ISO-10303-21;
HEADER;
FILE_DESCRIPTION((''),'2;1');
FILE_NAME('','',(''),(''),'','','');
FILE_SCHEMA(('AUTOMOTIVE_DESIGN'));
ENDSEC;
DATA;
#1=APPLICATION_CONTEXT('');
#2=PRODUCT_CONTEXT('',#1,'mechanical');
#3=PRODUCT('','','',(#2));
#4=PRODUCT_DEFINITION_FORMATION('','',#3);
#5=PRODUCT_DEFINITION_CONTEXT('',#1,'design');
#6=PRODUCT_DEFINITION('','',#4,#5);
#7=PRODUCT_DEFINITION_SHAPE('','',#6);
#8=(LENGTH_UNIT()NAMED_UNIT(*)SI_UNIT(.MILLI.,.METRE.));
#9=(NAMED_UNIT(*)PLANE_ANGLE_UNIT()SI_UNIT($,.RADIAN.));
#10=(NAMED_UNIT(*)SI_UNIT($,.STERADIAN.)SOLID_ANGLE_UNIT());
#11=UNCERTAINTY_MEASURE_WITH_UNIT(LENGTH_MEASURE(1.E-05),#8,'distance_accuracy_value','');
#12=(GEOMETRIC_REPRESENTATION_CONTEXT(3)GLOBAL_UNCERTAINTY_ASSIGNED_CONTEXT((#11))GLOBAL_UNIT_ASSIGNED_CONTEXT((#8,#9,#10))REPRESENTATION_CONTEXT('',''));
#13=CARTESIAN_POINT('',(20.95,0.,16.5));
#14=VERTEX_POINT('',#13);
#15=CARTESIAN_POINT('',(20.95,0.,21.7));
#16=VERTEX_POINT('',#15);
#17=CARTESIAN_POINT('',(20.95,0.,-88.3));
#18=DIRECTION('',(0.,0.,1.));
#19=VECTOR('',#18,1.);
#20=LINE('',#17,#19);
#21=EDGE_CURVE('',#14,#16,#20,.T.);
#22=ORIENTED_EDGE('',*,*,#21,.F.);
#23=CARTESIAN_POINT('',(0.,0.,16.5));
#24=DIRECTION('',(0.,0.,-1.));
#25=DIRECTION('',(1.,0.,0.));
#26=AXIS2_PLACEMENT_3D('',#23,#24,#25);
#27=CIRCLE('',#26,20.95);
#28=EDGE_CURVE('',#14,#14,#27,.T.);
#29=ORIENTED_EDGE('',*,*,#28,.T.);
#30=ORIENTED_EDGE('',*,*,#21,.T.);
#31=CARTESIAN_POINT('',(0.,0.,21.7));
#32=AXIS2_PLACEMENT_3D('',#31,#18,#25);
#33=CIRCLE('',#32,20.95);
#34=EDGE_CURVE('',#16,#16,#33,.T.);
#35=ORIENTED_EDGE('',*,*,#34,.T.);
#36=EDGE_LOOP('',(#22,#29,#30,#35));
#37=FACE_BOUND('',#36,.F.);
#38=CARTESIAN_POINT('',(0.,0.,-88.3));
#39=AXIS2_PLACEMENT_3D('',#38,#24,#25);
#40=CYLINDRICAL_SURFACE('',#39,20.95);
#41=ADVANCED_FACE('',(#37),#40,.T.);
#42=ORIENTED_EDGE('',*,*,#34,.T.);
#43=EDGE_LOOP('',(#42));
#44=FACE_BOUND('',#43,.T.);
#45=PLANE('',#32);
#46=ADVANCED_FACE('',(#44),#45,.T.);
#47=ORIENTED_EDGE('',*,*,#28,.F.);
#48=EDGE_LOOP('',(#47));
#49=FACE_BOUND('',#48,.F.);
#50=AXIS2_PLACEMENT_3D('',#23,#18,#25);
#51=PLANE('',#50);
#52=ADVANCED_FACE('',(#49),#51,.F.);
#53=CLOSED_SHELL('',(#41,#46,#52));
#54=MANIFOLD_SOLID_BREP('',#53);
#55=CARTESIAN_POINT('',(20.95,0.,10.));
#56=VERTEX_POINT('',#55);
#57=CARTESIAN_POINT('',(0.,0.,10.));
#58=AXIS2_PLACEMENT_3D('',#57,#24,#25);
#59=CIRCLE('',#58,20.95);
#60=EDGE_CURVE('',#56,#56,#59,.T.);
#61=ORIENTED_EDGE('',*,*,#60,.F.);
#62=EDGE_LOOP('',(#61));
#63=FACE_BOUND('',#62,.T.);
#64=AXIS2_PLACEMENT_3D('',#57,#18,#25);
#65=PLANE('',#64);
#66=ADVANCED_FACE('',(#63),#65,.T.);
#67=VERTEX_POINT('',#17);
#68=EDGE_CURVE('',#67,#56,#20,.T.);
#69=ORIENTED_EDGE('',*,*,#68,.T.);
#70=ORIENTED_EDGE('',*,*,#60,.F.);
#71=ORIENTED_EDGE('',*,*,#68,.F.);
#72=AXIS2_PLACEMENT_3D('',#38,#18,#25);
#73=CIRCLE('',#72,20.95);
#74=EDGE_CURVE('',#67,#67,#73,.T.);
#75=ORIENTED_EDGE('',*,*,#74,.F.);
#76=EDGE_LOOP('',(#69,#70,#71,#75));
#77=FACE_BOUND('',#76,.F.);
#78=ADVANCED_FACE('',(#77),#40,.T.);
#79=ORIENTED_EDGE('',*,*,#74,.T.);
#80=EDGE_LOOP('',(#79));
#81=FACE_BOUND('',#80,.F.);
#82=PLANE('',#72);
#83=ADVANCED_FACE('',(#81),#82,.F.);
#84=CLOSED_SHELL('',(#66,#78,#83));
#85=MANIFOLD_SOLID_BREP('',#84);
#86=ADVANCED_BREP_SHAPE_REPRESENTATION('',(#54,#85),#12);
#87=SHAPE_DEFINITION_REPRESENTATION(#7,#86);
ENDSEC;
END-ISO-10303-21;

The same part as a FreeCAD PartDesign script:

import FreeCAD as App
import Part
import Sketcher

V = App.Vector
Q = App.Units.Quantity

doc = App.newDocument("Part")
body = doc.addObject("PartDesign::Body", "Body")
body.AllowCompound = True

sketch1 = body.newObject("Sketcher::SketchObject", "Sketch")
sketch1.AttachmentSupport = (doc.getObject("XY_Plane"), [""])
sketch1.MapMode = "FlatFace"
sketch1.AttachmentOffset = App.Placement(V(0, 0, -88.3), App.Rotation())
sketch1.addGeometry(Part.Circle(V(0, 0, 0), V(0, 0, 1), 21), False)
sketch1.addConstraint(Sketcher.Constraint("Coincident", 0, 3, -1, 1))
sketch1.addConstraint(Sketcher.Constraint("Diameter", 0, Q("41.9 mm")))
pad1 = body.newObject("PartDesign::Pad", "Pad")
pad1.Profile = sketch1
pad1.Length = 110

sketch2 = body.newObject("Sketcher::SketchObject", "Sketch001")
sketch2.AttachmentSupport = (doc.getObject("XY_Plane"), [""])
sketch2.MapMode = "FlatFace"
sketch2.AttachmentOffset = App.Placement(V(0, 0, 10), App.Rotation())
sketch2.addGeometry(Part.Circle(V(0, 0, 0), V(0, 0, 1), 22), False)
sketch2.addConstraint(Sketcher.Constraint("Coincident", 0, 3, -1, 1))
sketch2.addConstraint(Sketcher.Constraint("Diameter", 0, Q("45 mm")))
pocket1 = body.newObject("PartDesign::Pocket", "Pocket")
pocket1.Profile = sketch2
pocket1.Length = 6.5
pocket1.Reversed = True

doc.recompute()
